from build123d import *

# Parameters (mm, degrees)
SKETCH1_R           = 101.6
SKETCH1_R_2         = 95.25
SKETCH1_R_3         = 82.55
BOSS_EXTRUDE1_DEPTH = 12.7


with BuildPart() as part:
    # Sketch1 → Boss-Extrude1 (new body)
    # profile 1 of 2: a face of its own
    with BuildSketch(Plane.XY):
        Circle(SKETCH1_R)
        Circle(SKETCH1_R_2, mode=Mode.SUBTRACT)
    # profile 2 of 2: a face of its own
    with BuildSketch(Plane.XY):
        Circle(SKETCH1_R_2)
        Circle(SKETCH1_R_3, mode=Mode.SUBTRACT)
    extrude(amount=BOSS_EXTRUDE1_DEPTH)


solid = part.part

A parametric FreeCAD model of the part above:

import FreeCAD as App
import Part
import Sketcher
Q = App.Units.Quantity

doc = App.newDocument("Part")
params = doc.addObject("Spreadsheet::Sheet", "Params")
for row, (alias, value) in enumerate([
    ("sketch1_diameter", "8 in"),
    ("sketch1_diameter2", "6.5 in"),
    ("pad1_length", "0.5 in"),
], start=1):
    params.set(f"A{row}", alias)
    params.set(f"B{row}", "=" + value)
    params.setAlias(f"B{row}", alias)

body = doc.addObject("PartDesign::Body", "Body")

# Sketch on XY plane
sketch1 = body.newObject("Sketcher::SketchObject", "Sketch")
sketch1.AttachmentSupport = (doc.getObject("XY_Plane"), [""])
sketch1.MapMode = "FlatFace"
sketch1.addGeometry([
    Part.Circle(App.Vector(0, 0, 0), App.Vector(0, 0, 1), 102),
    Part.Circle(App.Vector(0, 0, 0), App.Vector(0, 0, 1), 83),
], False)
sketch1.addConstraint([
    Sketcher.Constraint("Coincident", 0, 3, -1, 1),
    Sketcher.Constraint("Coincident", 1, 3, -1, 1),
    Sketcher.Constraint("Diameter", 0, Q("8 in")),
    Sketcher.Constraint("Diameter", 1, Q("6.5 in")),
])
sketch1.setExpression("Constraints[2]", "Params.sketch1_diameter")
sketch1.setExpression("Constraints[3]", "Params.sketch1_diameter2")
pad1 = body.newObject("PartDesign::Pad", "Pad")
pad1.Profile = sketch1
pad1.setExpression("Length", "Params.pad1_length")

doc.recompute()
